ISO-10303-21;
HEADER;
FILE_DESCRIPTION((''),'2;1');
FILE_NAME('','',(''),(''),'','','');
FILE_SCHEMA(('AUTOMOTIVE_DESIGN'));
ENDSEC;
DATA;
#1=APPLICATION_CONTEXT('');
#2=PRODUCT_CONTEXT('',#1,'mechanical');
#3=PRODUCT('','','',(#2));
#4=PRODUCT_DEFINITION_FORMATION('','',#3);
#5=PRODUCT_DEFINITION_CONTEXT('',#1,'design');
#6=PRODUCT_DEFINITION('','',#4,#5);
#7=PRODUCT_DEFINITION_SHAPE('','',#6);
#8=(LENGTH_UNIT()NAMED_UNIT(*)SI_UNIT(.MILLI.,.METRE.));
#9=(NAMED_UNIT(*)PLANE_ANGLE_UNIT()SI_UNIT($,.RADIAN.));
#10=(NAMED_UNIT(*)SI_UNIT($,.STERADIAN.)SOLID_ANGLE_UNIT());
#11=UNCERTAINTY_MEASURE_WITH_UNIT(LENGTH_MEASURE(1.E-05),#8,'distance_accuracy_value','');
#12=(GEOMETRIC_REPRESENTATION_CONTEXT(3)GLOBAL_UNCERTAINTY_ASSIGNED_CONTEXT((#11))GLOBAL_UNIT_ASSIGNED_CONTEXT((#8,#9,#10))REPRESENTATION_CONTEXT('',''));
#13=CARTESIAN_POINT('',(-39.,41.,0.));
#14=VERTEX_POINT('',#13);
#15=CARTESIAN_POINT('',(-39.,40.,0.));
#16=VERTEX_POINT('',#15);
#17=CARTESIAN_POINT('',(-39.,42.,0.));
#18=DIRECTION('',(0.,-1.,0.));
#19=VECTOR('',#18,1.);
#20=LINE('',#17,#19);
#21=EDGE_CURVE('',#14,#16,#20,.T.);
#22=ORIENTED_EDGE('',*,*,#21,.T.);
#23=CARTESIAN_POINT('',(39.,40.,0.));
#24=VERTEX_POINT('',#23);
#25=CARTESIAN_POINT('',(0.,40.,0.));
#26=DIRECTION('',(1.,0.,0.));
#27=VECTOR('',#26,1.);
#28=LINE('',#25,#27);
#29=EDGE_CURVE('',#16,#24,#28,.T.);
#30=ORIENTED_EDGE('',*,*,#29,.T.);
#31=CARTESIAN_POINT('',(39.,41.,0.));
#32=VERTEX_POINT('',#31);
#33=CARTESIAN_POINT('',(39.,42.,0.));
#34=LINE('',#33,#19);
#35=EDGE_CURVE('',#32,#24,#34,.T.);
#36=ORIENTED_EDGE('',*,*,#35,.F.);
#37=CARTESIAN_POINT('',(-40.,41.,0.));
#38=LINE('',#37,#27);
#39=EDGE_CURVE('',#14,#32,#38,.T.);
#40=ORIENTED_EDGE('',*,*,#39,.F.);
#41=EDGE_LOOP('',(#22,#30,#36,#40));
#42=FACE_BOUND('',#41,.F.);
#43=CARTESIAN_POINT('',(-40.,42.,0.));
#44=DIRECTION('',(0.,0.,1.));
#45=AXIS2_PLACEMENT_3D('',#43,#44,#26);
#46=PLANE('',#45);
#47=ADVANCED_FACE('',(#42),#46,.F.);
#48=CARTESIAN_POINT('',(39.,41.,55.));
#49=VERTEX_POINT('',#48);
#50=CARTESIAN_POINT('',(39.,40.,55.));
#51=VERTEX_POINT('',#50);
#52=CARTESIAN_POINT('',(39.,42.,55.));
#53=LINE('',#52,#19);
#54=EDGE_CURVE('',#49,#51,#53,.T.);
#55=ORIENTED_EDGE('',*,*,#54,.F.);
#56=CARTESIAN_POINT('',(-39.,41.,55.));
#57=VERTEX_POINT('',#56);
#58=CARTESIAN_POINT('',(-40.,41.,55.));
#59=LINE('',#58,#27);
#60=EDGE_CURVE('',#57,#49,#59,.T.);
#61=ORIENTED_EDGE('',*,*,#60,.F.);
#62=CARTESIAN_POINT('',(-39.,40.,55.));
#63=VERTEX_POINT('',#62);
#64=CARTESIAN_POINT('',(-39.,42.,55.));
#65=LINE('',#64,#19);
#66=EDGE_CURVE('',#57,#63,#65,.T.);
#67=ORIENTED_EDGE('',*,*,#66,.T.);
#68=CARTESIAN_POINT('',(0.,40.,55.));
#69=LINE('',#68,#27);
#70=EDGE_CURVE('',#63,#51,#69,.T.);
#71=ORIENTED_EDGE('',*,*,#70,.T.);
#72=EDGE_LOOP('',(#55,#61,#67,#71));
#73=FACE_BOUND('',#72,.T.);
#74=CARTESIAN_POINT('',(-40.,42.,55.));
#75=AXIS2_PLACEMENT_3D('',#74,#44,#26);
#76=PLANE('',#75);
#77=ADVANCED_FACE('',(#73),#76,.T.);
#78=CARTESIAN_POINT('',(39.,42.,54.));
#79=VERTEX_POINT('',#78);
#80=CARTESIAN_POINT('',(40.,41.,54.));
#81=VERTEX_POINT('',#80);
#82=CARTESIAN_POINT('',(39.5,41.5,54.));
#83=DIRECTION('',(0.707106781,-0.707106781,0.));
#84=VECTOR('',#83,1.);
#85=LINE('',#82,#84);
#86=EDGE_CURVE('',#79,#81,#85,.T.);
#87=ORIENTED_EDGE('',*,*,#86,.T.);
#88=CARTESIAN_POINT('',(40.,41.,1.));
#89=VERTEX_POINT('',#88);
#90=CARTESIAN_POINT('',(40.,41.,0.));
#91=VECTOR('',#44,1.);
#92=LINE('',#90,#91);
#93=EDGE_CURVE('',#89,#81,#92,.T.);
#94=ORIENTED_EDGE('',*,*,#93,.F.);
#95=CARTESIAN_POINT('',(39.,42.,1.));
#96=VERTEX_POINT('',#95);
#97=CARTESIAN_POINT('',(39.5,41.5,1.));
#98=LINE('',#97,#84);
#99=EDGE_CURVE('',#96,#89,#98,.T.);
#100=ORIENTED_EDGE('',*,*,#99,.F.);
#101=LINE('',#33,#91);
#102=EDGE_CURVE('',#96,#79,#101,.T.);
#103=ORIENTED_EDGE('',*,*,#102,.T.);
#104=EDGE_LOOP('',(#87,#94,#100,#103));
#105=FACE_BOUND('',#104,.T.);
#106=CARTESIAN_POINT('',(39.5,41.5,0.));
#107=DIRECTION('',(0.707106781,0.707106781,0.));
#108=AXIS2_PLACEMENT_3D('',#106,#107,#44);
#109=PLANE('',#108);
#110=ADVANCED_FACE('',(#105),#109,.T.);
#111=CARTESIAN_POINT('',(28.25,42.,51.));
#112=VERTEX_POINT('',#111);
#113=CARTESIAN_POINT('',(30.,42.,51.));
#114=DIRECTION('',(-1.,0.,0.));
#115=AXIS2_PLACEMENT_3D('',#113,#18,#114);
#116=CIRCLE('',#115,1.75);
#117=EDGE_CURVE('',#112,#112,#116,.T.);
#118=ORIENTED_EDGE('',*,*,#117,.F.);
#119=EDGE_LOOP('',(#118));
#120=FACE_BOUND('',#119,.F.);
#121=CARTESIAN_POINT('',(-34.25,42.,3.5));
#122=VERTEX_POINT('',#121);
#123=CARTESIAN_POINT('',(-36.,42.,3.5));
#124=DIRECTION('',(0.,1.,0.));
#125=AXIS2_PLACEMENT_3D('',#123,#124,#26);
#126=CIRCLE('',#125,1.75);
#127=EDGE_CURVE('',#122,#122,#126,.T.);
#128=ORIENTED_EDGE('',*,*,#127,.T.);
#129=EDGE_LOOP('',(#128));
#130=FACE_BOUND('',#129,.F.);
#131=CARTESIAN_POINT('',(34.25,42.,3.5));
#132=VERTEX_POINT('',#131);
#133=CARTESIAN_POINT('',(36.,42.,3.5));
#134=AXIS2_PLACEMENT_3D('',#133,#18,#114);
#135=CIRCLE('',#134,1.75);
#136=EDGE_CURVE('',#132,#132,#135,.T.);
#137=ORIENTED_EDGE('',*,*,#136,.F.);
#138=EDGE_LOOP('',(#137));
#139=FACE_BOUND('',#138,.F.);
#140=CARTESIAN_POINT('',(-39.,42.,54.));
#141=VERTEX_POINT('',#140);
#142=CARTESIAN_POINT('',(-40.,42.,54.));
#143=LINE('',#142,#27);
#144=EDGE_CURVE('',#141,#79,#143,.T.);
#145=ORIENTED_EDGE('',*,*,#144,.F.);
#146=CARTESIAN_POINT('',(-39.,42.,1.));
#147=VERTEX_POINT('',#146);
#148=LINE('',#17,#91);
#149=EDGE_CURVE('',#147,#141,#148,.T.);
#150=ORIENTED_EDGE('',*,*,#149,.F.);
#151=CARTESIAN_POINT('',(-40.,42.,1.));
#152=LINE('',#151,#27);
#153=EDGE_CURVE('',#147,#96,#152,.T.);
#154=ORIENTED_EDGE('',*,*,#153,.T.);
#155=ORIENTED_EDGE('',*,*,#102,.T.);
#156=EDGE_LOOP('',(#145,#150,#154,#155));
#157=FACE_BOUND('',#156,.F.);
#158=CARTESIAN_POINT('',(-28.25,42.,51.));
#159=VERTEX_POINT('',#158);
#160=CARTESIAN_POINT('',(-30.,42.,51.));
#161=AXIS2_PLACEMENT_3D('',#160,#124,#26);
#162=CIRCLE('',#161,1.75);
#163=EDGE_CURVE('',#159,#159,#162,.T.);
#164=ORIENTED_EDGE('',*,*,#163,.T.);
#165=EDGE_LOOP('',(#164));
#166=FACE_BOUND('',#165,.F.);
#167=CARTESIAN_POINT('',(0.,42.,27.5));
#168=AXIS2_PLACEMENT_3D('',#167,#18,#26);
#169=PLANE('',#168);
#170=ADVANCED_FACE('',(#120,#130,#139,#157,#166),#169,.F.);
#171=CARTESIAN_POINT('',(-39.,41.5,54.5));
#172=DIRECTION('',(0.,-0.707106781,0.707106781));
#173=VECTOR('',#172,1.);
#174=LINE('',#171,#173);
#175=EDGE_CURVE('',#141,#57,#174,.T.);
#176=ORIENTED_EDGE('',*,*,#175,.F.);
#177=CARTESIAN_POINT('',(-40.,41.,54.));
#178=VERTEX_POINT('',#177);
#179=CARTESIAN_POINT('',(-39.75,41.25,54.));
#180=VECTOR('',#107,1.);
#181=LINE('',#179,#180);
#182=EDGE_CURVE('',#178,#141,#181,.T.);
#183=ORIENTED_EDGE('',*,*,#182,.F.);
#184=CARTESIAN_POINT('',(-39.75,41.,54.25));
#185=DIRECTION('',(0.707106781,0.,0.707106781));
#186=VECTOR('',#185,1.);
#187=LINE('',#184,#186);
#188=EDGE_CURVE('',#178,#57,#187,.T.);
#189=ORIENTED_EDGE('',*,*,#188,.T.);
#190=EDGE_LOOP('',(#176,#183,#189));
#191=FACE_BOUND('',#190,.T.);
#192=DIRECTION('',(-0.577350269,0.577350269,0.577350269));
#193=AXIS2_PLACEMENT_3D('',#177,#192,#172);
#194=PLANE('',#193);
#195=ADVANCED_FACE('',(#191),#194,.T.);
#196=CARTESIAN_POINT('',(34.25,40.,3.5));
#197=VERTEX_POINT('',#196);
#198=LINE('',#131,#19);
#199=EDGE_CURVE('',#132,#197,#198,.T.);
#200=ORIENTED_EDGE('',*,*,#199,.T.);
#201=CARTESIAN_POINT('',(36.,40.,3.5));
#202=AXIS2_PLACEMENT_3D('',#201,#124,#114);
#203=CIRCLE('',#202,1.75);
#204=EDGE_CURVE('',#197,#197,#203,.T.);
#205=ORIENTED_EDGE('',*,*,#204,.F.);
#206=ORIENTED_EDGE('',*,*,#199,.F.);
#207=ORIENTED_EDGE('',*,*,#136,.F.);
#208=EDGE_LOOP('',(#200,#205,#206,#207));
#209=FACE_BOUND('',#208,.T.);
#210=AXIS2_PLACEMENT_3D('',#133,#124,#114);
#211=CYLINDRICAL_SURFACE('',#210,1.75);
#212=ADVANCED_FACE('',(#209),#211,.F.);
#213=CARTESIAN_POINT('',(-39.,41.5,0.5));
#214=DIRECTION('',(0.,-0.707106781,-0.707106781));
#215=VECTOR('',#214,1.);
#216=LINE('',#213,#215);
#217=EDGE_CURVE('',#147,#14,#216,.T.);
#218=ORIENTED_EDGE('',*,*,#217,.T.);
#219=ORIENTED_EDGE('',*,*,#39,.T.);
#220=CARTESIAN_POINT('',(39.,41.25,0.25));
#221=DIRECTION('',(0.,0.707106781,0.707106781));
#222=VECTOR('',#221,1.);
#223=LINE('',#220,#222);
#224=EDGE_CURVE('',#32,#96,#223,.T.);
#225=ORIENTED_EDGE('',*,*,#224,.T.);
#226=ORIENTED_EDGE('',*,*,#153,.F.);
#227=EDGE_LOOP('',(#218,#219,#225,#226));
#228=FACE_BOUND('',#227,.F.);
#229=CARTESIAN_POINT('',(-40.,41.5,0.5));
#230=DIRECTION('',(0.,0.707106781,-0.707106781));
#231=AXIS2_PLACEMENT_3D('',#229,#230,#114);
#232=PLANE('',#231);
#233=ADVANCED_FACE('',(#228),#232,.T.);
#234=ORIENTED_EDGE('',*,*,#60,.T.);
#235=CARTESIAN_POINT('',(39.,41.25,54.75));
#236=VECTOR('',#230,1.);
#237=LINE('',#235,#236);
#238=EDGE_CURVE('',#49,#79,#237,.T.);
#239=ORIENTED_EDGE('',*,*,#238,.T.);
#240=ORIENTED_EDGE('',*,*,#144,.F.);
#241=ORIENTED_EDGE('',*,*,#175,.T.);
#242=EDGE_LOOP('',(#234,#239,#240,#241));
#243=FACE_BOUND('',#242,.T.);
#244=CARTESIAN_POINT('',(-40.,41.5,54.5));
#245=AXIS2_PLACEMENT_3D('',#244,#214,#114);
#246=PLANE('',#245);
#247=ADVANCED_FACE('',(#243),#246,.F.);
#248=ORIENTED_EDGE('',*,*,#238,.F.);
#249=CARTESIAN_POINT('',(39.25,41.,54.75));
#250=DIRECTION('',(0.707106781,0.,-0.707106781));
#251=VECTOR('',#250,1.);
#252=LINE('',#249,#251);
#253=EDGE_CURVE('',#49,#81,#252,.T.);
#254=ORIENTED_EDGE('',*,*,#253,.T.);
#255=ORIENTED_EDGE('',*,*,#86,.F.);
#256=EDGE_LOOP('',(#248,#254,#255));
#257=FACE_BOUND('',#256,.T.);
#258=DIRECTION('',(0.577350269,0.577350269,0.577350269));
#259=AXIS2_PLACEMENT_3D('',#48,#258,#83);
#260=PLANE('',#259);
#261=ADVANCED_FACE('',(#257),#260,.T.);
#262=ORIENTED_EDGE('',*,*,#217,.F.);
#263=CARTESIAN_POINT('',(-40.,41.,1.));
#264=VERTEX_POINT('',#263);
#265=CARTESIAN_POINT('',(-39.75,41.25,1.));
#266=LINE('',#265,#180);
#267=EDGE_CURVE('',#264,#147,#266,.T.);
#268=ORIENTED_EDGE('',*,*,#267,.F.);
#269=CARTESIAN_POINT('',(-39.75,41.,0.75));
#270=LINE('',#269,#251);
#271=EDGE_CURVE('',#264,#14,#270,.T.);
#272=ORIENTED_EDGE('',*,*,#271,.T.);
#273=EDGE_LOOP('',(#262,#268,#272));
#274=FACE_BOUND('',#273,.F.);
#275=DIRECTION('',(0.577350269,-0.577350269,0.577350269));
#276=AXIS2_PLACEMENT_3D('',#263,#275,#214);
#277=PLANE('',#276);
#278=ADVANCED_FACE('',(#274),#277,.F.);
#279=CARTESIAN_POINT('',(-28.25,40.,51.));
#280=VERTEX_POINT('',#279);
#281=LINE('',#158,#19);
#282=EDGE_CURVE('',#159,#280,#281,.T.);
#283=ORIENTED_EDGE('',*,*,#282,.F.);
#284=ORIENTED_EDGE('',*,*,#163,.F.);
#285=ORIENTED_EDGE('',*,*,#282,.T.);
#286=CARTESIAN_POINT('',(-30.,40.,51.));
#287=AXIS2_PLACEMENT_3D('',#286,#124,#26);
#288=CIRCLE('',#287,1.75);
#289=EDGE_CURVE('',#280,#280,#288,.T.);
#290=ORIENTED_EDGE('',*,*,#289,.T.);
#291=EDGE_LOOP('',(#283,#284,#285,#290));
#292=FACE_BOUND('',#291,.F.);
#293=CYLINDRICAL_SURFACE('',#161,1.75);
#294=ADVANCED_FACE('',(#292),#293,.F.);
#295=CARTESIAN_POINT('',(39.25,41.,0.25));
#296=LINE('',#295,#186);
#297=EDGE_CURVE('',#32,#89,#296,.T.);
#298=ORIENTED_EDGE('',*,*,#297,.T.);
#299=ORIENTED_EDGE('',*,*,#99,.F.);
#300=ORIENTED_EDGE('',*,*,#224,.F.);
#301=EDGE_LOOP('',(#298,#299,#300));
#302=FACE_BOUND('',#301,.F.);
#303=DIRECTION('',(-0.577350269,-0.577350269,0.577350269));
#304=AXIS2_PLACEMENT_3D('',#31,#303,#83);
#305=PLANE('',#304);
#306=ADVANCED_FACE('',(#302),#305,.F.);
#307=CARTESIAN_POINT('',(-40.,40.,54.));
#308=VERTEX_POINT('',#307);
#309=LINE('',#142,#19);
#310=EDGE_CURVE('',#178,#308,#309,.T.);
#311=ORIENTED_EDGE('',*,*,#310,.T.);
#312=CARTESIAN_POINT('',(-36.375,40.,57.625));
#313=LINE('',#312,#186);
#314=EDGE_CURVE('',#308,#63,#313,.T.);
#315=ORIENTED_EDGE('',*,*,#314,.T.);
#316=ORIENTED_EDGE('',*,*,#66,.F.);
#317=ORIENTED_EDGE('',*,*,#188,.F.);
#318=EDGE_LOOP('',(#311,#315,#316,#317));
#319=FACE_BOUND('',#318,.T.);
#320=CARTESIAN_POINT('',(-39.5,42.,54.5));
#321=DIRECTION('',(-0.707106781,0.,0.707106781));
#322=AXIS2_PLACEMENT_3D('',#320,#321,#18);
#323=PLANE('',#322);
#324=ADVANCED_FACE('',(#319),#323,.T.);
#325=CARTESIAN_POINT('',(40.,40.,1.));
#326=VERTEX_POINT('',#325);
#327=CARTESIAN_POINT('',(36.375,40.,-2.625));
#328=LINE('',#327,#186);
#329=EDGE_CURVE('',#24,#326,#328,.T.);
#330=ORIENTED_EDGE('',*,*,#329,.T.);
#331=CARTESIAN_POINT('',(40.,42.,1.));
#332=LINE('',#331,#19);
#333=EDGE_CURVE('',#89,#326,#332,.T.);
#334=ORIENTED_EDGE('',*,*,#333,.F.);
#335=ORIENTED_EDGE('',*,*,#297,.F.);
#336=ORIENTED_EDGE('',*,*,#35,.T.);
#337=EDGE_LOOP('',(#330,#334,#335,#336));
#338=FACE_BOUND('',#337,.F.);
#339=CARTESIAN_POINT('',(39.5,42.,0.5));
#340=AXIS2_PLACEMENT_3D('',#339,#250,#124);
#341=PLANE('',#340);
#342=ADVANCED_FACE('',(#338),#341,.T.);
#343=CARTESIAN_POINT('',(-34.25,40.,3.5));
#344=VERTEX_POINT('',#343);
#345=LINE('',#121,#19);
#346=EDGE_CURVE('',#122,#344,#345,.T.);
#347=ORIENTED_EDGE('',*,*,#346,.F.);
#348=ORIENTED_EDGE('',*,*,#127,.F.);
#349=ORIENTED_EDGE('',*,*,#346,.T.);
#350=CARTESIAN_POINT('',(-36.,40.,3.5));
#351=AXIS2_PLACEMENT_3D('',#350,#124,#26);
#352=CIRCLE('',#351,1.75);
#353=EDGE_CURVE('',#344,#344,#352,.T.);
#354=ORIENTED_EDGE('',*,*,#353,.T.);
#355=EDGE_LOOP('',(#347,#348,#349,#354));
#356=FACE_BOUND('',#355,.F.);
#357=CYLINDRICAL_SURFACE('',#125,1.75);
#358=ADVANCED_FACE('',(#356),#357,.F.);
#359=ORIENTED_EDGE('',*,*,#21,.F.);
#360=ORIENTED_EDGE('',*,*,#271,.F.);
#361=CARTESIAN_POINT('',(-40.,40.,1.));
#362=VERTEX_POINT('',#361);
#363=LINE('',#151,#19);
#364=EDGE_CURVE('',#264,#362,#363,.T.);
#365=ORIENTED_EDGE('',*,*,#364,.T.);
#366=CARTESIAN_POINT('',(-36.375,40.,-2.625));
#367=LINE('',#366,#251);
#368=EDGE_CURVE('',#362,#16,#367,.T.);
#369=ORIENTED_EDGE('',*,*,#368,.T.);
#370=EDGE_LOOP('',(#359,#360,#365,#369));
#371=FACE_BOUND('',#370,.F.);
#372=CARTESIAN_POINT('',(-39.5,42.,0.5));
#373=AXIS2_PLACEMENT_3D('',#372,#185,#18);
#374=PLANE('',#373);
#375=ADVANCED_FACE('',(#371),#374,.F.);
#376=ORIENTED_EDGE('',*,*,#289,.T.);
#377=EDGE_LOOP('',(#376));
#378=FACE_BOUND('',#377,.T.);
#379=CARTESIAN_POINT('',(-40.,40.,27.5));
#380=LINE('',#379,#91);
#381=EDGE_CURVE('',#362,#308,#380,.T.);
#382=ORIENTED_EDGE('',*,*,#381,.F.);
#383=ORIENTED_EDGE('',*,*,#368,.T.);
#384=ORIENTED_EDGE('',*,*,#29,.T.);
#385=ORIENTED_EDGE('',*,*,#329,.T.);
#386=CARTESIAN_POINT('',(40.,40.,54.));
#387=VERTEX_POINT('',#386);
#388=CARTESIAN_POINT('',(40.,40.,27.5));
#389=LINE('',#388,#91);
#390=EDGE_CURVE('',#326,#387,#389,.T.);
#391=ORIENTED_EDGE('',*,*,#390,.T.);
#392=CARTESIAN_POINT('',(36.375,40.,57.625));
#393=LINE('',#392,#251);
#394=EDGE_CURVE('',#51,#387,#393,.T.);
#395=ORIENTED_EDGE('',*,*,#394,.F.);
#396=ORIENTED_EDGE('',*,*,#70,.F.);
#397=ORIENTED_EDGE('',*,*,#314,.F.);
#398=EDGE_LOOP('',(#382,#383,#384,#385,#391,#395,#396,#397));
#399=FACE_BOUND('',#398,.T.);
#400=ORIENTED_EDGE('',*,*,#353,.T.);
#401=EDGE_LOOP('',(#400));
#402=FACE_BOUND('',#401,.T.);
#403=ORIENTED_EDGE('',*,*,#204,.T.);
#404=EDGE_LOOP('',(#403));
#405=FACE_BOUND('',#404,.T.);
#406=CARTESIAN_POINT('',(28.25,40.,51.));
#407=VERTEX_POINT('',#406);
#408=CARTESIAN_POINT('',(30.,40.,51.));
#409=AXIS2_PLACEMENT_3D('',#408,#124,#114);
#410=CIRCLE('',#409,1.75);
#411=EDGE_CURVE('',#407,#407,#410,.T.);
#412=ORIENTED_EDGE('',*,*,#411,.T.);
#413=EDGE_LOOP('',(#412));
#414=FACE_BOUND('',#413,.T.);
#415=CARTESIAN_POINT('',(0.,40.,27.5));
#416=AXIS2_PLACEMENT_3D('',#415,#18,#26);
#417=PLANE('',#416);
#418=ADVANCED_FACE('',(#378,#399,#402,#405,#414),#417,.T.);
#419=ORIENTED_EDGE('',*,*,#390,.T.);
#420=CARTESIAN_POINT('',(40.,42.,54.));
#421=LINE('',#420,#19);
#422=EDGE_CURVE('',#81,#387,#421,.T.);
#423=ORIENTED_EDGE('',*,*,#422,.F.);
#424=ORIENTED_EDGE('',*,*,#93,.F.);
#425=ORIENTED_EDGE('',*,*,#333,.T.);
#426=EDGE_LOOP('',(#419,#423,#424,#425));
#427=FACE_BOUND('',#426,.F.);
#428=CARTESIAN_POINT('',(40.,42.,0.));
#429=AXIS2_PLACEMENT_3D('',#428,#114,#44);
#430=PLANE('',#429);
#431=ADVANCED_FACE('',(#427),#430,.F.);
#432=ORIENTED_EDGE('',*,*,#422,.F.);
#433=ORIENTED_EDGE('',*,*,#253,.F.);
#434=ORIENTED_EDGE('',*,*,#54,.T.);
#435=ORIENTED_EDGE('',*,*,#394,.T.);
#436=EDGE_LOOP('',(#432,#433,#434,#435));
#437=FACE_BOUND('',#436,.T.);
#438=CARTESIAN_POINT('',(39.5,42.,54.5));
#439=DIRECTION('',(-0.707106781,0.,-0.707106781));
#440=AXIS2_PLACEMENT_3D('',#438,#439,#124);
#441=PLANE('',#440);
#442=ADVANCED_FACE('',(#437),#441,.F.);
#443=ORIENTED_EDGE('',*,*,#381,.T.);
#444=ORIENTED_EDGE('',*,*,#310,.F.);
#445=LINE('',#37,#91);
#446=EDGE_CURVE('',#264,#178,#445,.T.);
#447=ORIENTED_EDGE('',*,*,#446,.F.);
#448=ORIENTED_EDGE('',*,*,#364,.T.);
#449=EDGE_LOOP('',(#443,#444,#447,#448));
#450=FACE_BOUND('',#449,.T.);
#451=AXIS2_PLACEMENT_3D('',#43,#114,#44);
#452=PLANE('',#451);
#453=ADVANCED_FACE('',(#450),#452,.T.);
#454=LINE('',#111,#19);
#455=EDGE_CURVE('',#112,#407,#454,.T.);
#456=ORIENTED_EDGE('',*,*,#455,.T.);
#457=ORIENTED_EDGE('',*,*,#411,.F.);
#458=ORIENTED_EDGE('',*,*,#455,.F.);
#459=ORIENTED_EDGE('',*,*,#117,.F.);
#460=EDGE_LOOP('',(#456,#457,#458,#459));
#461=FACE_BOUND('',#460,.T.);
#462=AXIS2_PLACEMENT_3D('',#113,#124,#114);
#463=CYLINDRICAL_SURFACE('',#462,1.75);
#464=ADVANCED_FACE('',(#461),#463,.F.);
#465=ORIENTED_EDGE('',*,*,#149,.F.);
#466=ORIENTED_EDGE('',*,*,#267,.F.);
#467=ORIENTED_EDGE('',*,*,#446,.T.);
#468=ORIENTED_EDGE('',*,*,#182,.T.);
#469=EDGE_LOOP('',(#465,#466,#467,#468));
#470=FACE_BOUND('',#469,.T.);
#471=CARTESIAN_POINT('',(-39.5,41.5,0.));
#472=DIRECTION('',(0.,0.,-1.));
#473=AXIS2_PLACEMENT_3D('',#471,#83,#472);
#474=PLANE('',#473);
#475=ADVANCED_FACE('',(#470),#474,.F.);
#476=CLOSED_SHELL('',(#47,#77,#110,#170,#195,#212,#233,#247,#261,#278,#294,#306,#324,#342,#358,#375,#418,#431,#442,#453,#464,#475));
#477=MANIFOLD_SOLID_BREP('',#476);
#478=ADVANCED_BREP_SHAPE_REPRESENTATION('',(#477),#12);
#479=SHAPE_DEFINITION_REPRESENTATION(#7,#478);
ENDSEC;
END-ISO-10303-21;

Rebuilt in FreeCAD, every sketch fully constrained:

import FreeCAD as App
import Part
import Sketcher


def edges_at(feature, points):
    """Names of the edges that pass closest to the given points."""
    edges = feature.Shape.Edges
    near = lambda p: min(range(len(edges)), key=lambda i: edges[i].distToShape(Part.Vertex(*p))[0])
    return sorted({f"Edge{near(p) + 1}" for p in points})


def add_polygon(sketch, points):
    """Adds a closed chain of lines whose ends are joined by coincident constraints."""
    first, n = sketch.GeometryCount, len(points)
    for a, b in zip(points, points[1:] + points[:1]):
        sketch.addGeometry(Part.LineSegment(App.Vector(*a, 0), App.Vector(*b, 0)), False)
    for i in range(n):
        sketch.addConstraint(Sketcher.Constraint("Coincident", first + i, 2, first + (i + 1) % n, 1))

doc = App.newDocument("Part")
body = doc.addObject("PartDesign::Body", "Body")

sketch1 = doc.addObject("Sketcher::SketchObject", "Sketch")
body.addObject(sketch1)
sketch1.AttachmentSupport = (doc.XZ_Plane, [""])
sketch1.MapMode = "FlatFace"
add_polygon(sketch1, [(-40, 55), (-40, 0), (40, 0), (40, 55)])
sketch1.addConstraint([
    Sketcher.Constraint("Vertical", 0),
    Sketcher.Constraint("Horizontal", 1),
    Sketcher.Constraint("Vertical", 2),
    Sketcher.Constraint("Horizontal", 3),
    Sketcher.Constraint("Symmetric", 0, 2, 1, 2, -1, 1),
    Sketcher.Constraint("DistanceX", 1, 1, 1, 2, 80.0),
    Sketcher.Constraint("DistanceY", 0, 2, 0, 1, 55.0),
])
pad1 = doc.addObject("PartDesign::Pad", "Pad")
body.addObject(pad1)
pad1.Profile = sketch1
pad1.Length = 2

sketch2 = doc.addObject("Sketcher::SketchObject", "Sketch001")
body.addObject(sketch2)
sketch2.AttachmentSupport = (doc.XZ_Plane, [""])
sketch2.MapMode = "FlatFace"
sketch2.addGeometry([
    Part.Circle(App.Vector(-36, 3.5, 0), App.Vector(0, 0, 1), 1.8),
    Part.Circle(App.Vector(-30, 51, 0), App.Vector(0, 0, 1), 1.8),
], False)
sketch2.addConstraint([
    Sketcher.Constraint("Equal", 0, 1),
    Sketcher.Constraint("Diameter", 0, 3.5),
    Sketcher.Constraint("DistanceX", 0, 3, -1, 1, 36.0),
    Sketcher.Constraint("DistanceX", 1, 3, -1, 1, 30.0),
    Sketcher.Constraint("DistanceY", -1, 1, 1, 3, 51.0),
    Sketcher.Constraint("DistanceY", -1, 1, 0, 3, 3.5),
])
pocket1 = doc.addObject("PartDesign::Pocket", "Pocket")
body.addObject(pocket1)
pocket1.Profile = sketch2
pocket1.Length = 5
pocket1.Reversed = True
doc.recompute()

mirrored = doc.addObject("PartDesign::Mirrored", "Mirrored")
body.addObject(mirrored)
mirrored.Originals = [pocket1]
mirrored.MirrorPlane = (doc.YZ_Plane, [""])
body.Tip = mirrored
doc.recompute()

chamfer = doc.addObject("PartDesign::Chamfer", "Chamfer")
body.addObject(chamfer)
chamfer.Base = (mirrored, edges_at(mirrored, [
    (40, 0, 27.5),
    (0, 0, 55),
    (0, 0, 0),
    (-40, 0, 27.5),
    (40, -1, 55),
    (-40, -1, 55),
    (-40, -1, 0),
    (40, -1, 0),
]))
chamfer.Size = 1
body2 = doc.addObject("PartDesign::Body", "Body001")
doc.recompute()

body.Placement = App.Placement(App.Vector(0, 42, 0), App.Rotation(App.Vector(0, 0, 1), 0))
boolean = doc.addObject("PartDesign::Boolean", "Boolean")
body2.addObject(boolean)
boolean.Type = "Fuse"
boolean.addObjects([body])

doc.recompute()
